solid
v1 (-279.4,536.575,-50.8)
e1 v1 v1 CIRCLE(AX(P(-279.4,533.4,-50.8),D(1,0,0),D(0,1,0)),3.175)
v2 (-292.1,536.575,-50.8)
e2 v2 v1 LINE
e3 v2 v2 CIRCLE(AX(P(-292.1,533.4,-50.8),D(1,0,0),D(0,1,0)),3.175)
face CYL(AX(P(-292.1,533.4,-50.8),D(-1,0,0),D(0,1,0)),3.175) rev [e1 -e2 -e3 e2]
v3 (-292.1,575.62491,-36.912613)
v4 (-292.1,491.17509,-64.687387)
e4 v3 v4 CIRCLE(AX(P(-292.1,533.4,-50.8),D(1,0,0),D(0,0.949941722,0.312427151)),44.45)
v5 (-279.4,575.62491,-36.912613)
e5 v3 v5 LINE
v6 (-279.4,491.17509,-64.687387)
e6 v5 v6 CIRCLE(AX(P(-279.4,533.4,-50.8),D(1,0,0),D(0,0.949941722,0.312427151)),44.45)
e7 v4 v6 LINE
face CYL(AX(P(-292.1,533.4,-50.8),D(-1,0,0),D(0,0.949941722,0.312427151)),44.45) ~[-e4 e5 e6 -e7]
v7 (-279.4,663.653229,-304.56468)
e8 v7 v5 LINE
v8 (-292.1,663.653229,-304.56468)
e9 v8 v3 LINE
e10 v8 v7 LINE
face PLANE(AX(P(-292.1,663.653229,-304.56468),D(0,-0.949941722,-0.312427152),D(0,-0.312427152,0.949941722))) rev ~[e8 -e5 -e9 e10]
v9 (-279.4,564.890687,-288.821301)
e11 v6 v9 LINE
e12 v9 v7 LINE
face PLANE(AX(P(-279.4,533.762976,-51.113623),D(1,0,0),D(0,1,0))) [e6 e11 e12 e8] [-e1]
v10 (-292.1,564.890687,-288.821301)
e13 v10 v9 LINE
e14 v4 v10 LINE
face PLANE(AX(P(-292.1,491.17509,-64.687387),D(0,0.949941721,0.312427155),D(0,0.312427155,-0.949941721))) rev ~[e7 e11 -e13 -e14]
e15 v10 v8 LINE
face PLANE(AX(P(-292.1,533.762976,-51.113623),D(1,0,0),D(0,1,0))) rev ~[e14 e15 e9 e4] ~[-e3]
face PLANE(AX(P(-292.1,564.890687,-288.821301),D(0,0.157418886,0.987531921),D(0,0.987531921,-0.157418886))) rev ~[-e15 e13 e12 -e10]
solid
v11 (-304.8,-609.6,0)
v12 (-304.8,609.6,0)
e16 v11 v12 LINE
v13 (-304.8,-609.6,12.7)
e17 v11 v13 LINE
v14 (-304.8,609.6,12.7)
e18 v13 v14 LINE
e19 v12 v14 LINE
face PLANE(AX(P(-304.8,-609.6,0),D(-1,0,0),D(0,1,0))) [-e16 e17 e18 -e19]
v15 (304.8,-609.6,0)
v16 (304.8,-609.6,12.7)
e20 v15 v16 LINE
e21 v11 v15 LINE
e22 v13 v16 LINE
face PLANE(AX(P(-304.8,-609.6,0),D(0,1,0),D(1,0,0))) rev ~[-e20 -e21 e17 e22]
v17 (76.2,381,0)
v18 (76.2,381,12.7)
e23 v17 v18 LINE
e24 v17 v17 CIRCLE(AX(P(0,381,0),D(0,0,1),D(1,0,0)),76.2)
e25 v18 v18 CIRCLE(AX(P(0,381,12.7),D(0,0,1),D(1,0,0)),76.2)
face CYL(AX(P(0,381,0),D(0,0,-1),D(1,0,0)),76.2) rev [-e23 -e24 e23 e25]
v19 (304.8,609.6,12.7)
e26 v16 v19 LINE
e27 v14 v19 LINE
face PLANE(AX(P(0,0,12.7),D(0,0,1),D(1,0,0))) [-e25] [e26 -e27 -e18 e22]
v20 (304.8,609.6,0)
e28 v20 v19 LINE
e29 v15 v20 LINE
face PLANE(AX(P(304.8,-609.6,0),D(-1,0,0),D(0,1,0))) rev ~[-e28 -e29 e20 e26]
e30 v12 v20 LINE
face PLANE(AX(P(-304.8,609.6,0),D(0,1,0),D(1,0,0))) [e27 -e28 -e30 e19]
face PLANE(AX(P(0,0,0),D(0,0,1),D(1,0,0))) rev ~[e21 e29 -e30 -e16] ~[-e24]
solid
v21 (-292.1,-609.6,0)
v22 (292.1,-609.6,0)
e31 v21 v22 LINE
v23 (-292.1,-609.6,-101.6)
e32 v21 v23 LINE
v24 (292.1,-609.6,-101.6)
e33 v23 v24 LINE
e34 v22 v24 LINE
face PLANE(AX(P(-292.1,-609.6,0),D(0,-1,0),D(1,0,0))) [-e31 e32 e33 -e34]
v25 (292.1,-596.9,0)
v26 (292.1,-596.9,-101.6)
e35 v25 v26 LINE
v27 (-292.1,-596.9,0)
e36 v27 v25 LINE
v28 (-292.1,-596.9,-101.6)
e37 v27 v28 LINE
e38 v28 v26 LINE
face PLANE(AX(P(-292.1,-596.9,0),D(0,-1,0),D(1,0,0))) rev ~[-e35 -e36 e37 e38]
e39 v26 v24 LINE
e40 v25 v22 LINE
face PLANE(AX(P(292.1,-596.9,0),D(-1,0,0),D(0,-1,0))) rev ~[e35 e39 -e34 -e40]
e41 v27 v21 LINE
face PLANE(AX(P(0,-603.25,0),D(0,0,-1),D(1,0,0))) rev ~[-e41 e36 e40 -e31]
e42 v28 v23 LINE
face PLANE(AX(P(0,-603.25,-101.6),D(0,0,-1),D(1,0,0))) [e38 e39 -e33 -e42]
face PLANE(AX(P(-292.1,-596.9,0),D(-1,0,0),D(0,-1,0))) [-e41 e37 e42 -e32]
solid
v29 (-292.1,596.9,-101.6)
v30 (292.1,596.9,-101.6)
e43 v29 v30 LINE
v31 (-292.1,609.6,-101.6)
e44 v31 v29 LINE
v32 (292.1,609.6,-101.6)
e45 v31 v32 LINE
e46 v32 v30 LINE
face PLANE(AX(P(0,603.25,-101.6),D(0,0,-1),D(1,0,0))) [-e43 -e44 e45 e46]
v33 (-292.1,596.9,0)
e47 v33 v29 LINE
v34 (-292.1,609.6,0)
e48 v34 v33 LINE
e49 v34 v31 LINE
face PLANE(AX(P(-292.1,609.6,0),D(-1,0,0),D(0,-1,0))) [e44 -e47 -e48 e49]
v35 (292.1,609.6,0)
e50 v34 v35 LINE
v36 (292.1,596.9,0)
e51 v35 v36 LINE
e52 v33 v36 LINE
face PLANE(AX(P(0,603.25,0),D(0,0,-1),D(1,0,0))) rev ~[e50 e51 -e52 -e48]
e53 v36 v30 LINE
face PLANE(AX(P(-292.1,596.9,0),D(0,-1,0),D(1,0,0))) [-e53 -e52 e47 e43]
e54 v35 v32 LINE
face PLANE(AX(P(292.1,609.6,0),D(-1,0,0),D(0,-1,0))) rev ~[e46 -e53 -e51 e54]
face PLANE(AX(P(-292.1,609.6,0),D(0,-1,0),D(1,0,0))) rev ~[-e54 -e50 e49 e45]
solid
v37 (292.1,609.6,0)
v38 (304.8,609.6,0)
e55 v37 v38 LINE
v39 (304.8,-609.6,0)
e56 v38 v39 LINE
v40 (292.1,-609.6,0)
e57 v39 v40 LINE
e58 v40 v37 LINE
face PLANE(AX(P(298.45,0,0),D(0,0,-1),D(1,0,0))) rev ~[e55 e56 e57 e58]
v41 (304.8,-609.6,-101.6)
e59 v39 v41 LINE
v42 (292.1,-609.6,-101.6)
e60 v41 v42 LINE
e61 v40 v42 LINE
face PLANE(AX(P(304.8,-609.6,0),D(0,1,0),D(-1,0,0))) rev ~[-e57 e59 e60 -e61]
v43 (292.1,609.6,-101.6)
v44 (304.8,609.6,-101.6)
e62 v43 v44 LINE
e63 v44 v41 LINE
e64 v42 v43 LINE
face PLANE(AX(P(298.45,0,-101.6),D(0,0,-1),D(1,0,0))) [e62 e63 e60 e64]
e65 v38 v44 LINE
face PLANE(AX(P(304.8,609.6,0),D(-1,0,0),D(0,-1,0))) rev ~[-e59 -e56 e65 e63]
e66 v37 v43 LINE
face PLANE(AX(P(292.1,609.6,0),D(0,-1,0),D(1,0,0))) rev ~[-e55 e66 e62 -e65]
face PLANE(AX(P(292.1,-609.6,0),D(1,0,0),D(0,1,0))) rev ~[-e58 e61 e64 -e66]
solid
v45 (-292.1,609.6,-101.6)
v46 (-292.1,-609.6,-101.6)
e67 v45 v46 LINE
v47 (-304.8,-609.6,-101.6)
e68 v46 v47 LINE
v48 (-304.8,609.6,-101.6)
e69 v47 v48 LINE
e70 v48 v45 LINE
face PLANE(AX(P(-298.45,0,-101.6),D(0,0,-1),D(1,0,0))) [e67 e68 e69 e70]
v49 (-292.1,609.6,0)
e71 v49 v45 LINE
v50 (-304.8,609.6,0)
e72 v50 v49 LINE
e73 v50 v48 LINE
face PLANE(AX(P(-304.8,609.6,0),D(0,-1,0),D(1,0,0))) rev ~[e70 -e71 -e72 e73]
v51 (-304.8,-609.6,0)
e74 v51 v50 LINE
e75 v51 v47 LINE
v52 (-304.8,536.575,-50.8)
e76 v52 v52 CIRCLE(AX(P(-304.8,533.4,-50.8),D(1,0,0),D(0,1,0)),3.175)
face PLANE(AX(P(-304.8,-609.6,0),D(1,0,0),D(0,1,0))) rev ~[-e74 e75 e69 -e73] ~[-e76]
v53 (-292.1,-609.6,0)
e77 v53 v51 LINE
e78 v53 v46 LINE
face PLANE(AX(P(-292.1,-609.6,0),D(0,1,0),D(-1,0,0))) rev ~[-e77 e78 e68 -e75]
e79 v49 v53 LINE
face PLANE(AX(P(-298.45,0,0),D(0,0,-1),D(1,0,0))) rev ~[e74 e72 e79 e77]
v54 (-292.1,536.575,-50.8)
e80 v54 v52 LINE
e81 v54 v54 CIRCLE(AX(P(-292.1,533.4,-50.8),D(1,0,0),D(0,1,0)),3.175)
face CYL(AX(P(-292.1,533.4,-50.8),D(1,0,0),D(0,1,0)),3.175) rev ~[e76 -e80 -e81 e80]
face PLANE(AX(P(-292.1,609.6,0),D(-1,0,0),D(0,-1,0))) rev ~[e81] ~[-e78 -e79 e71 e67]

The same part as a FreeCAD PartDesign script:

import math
import FreeCAD as App
import Part
import Sketcher
Q = App.Units.Quantity

doc = App.newDocument("Part")
body = doc.addObject("PartDesign::Body", "Body")

# Sketch on XY plane
sketch1 = body.newObject("Sketcher::SketchObject", "Sketch")
sketch1.AttachmentSupport = (doc.getObject("XY_Plane"), [""])
sketch1.MapMode = "FlatFace"
sketch1.addGeometry(Part.LineSegment(App.Vector(-304.8, 609.6, 0), App.Vector(-304.8, -609.6, 0)), False)
sketch1.addGeometry(Part.LineSegment(App.Vector(-304.8, -609.6, 0), App.Vector(304.8, -609.6, 0)), False)
sketch1.addGeometry(Part.LineSegment(App.Vector(304.8, -609.6, 0), App.Vector(304.8, 609.6, 0)), False)
sketch1.addGeometry(Part.LineSegment(App.Vector(304.8, 609.6, 0), App.Vector(-304.8, 609.6, 0)), False)
sketch1.addGeometry(Part.Circle(App.Vector(0, 381, 0), App.Vector(0, 0, 1), 76.2), False)
sketch1.addConstraint(Sketcher.Constraint("Coincident", 0, 2, 1, 1))
sketch1.addConstraint(Sketcher.Constraint("Coincident", 1, 2, 2, 1))
sketch1.addConstraint(Sketcher.Constraint("Coincident", 2, 2, 3, 1))
sketch1.addConstraint(Sketcher.Constraint("Coincident", 3, 2, 0, 1))
sketch1.addConstraint(Sketcher.Constraint("Vertical", 0))
sketch1.addConstraint(Sketcher.Constraint("Horizontal", 1))
sketch1.addConstraint(Sketcher.Constraint("Vertical", 2))
sketch1.addConstraint(Sketcher.Constraint("Horizontal", 3))
sketch1.addConstraint(Sketcher.Constraint("Symmetric", 0, 2, 2, 2, -1, 1))
sketch1.addConstraint(Sketcher.Constraint("PointOnObject", 4, 3, -2))
sketch1.addConstraint(Sketcher.Constraint("Diameter", 4, Q("6 in")))
sketch1.addConstraint(Sketcher.Constraint("DistanceX", 1, 1, 1, 2, Q("24 in")))
sketch1.addConstraint(Sketcher.Constraint("DistanceY", 0, 2, 0, 1, Q("48 in")))
sketch1.addConstraint(Sketcher.Constraint("DistanceY", -1, 1, 4, 3, Q("15 in")))
pad1 = body.newObject("PartDesign::Pad", "Pad")
pad1.Profile = sketch1
pad1.Length = Q("0.5 in")
body2 = doc.addObject("PartDesign::Body", "Body001")
body2.AllowCompound = True

# Sketch on XY plane
sketch2 = body2.newObject("Sketcher::SketchObject", "Sketch001")
sketch2.AttachmentSupport = (doc.getObject("XY_Plane001"), [""])
sketch2.MapMode = "FlatFace"
sketch2.addGeometry(Part.LineSegment(App.Vector(-292.1, -609.6, 0), App.Vector(-304.8, -609.6, 0)), False)
sketch2.addGeometry(Part.LineSegment(App.Vector(-304.8, -609.6, 0), App.Vector(-304.8, 609.6, 0)), False)
sketch2.addGeometry(Part.LineSegment(App.Vector(-304.8, 609.6, 0), App.Vector(-292.1, 609.6, 0)), False)
sketch2.addGeometry(Part.LineSegment(App.Vector(-292.1, 609.6, 0), App.Vector(-292.1, -609.6, 0)), False)
sketch2.addGeometry(Part.LineSegment(App.Vector(304.8, -609.6, 0), App.Vector(292.1, -609.6, 0)), False)
sketch2.addGeometry(Part.LineSegment(App.Vector(292.1, -609.6, 0), App.Vector(292.1, 609.6, 0)), False)
sketch2.addGeometry(Part.LineSegment(App.Vector(292.1, 609.6, 0), App.Vector(304.8, 609.6, 0)), False)
sketch2.addGeometry(Part.LineSegment(App.Vector(304.8, 609.6, 0), App.Vector(304.8, -609.6, 0)), False)
sketch2.addConstraint(Sketcher.Constraint("Coincident", 0, 2, 1, 1))
sketch2.addConstraint(Sketcher.Constraint("Coincident", 1, 2, 2, 1))
sketch2.addConstraint(Sketcher.Constraint("Coincident", 2, 2, 3, 1))
sketch2.addConstraint(Sketcher.Constraint("Coincident", 3, 2, 0, 1))
sketch2.addConstraint(Sketcher.Constraint("Coincident", 4, 2, 5, 1))
sketch2.addConstraint(Sketcher.Constraint("Coincident", 5, 2, 6, 1))
sketch2.addConstraint(Sketcher.Constraint("Coincident", 6, 2, 7, 1))
sketch2.addConstraint(Sketcher.Constraint("Coincident", 7, 2, 4, 1))
sketch2.addConstraint(Sketcher.Constraint("Horizontal", 0))
sketch2.addConstraint(Sketcher.Constraint("Vertical", 1))
sketch2.addConstraint(Sketcher.Constraint("Horizontal", 2))
sketch2.addConstraint(Sketcher.Constraint("Vertical", 3))
sketch2.addConstraint(Sketcher.Constraint("Horizontal", 4))
sketch2.addConstraint(Sketcher.Constraint("Vertical", 5))
sketch2.addConstraint(Sketcher.Constraint("Horizontal", 6))
sketch2.addConstraint(Sketcher.Constraint("Vertical", 7))
sketch2.addConstraint(Sketcher.Constraint("Symmetric", 2, 2, 4, 2, -1, 1))
sketch2.addConstraint(Sketcher.Constraint("Symmetric", 0, 2, 6, 2, -1, 1))
sketch2.addConstraint(Sketcher.Constraint("Horizontal", 3, 2, 4, 2))
sketch2.addConstraint(Sketcher.Constraint("DistanceY", 1, 1, 1, 2, Q("48 in")))
sketch2.addConstraint(Sketcher.Constraint("DistanceX", 0, 2, 0, 1, Q("0.5 in")))
sketch2.addConstraint(Sketcher.Constraint("DistanceX", 0, 2, -1, 1, Q("12 in")))
pad2 = body2.newObject("PartDesign::Pad", "Pad001")
pad2.Profile = sketch2
pad2.Length = Q("4 in")
pad2.Reversed = True

# Sketch on YZ plane
sketch3 = body2.newObject("Sketcher::SketchObject", "Sketch002")
sketch3.AttachmentSupport = (doc.getObject("YZ_Plane001"), [""])
sketch3.MapMode = "FlatFace"
sketch3.AttachmentOffset = App.Placement(App.Vector(0, 0, -11.5 * 25.4), App.Rotation())
sketch3.addGeometry(Part.Circle(App.Vector(533.4, -50.8, 0), App.Vector(0, 0, 1), 3.175), False)
sketch3.addConstraint(Sketcher.Constraint("Diameter", 0, Q("0.25 in")))
sketch3.addConstraint(Sketcher.Constraint("DistanceX", -1, 1, 0, 3, Q("21 in")))
sketch3.addConstraint(Sketcher.Constraint("DistanceY", 0, 3, -1, 1, Q("2 in")))
pocket1 = body2.newObject("PartDesign::Pocket", "Pocket")
pocket1.Profile = sketch3
pocket1.Type = "ThroughAll"
body3 = doc.addObject("PartDesign::Body", "Body002")
body3.AllowCompound = True

# Sketch on XY plane
sketch4 = body3.newObject("Sketcher::SketchObject", "Sketch003")
sketch4.AttachmentSupport = (doc.getObject("XY_Plane002"), [""])
sketch4.MapMode = "FlatFace"
sketch4.addGeometry(Part.LineSegment(App.Vector(-292.1, -609.6, 0), App.Vector(-292.1, -596.9, 0)), False)
sketch4.addGeometry(Part.LineSegment(App.Vector(-292.1, -596.9, 0), App.Vector(292.1, -596.9, 0)), False)
sketch4.addGeometry(Part.LineSegment(App.Vector(292.1, -596.9, 0), App.Vector(292.1, -609.6, 0)), False)
sketch4.addGeometry(Part.LineSegment(App.Vector(292.1, -609.6, 0), App.Vector(-292.1, -609.6, 0)), False)
sketch4.addGeometry(Part.LineSegment(App.Vector(-292.1, 596.9, 0), App.Vector(-292.1, 609.6, 0)), False)
sketch4.addGeometry(Part.LineSegment(App.Vector(-292.1, 609.6, 0), App.Vector(292.1, 609.6, 0)), False)
sketch4.addGeometry(Part.LineSegment(App.Vector(292.1, 609.6, 0), App.Vector(292.1, 596.9, 0)), False)
sketch4.addGeometry(Part.LineSegment(App.Vector(292.1, 596.9, 0), App.Vector(-292.1, 596.9, 0)), False)
sketch4.addConstraint(Sketcher.Constraint("Coincident", 0, 2, 1, 1))
sketch4.addConstraint(Sketcher.Constraint("Coincident", 1, 2, 2, 1))
sketch4.addConstraint(Sketcher.Constraint("Coincident", 2, 2, 3, 1))
sketch4.addConstraint(Sketcher.Constraint("Coincident", 3, 2, 0, 1))
sketch4.addConstraint(Sketcher.Constraint("Coincident", 4, 2, 5, 1))
sketch4.addConstraint(Sketcher.Constraint("Coincident", 5, 2, 6, 1))
sketch4.addConstraint(Sketcher.Constraint("Coincident", 6, 2, 7, 1))
sketch4.addConstraint(Sketcher.Constraint("Coincident", 7, 2, 4, 1))
sketch4.addConstraint(Sketcher.Constraint("Vertical", 0))
sketch4.addConstraint(Sketcher.Constraint("Horizontal", 1))
sketch4.addConstraint(Sketcher.Constraint("Vertical", 2))
sketch4.addConstraint(Sketcher.Constraint("Horizontal", 3))
sketch4.addConstraint(Sketcher.Constraint("Vertical", 4))
sketch4.addConstraint(Sketcher.Constraint("Horizontal", 5))
sketch4.addConstraint(Sketcher.Constraint("Vertical", 6))
sketch4.addConstraint(Sketcher.Constraint("Horizontal", 7))
sketch4.addConstraint(Sketcher.Constraint("Symmetric", 2, 2, 4, 2, -1, 1))
sketch4.addConstraint(Sketcher.Constraint("Symmetric", 0, 2, 6, 2, -1, 1))
sketch4.addConstraint(Sketcher.Constraint("Vertical", 3, 2, 4, 2))
sketch4.addConstraint(Sketcher.Constraint("DistanceX", 1, 1, 1, 2, Q("23 in")))
sketch4.addConstraint(Sketcher.Constraint("DistanceY", 0, 1, 0, 2, Q("0.5 in")))
sketch4.addConstraint(Sketcher.Constraint("DistanceY", 2, 2, -1, 1, Q("24 in")))
pad3 = body3.newObject("PartDesign::Pad", "Pad002")
pad3.Profile = sketch4
pad3.Length = Q("4 in")
pad3.Reversed = True
body4 = doc.addObject("PartDesign::Body", "Body003")

# Sketch on YZ plane
sketch5 = body4.newObject("Sketcher::SketchObject", "Sketch004")
sketch5.AttachmentSupport = (doc.getObject("YZ_Plane003"), [""])
sketch5.MapMode = "FlatFace"
sketch5.AttachmentOffset = App.Placement(App.Vector(0, 0, -11.5 * 25.4), App.Rotation())
sketch5.addGeometry(Part.ArcOfCircle(Part.Circle(App.Vector(533.4, -50.8, 0), App.Vector(0, 0, 1), 44.45), math.radians(18.205563), math.radians(198.205563)), False)
sketch5.addGeometry(Part.LineSegment(App.Vector(491.17509, -64.687387, 0), App.Vector(564.890687, -288.821301, 0)), False)
sketch5.addGeometry(Part.LineSegment(App.Vector(564.890687, -288.821301, 0), App.Vector(663.653229, -304.56468, 0)), False)
sketch5.addGeometry(Part.LineSegment(App.Vector(663.653229, -304.56468, 0), App.Vector(575.62491, -36.912613, 0)), False)
sketch5.addGeometry(Part.Circle(App.Vector(533.4, -50.8, 0), App.Vector(0, 0, 1), 3.175), False)
sketch5.addConstraint(Sketcher.Constraint("Tangent", 0, 2, 1, 1))
sketch5.addConstraint(Sketcher.Constraint("Coincident", 1, 2, 2, 1))
sketch5.addConstraint(Sketcher.Constraint("Coincident", 2, 2, 3, 1))
sketch5.addConstraint(Sketcher.Constraint("Tangent", 3, 2, 0, 1))
sketch5.addConstraint(Sketcher.Constraint("Coincident", 4, 3, 0, 3))
sketch5.addConstraint(Sketcher.Constraint("Parallel", 1, 3))
sketch5.addConstraint(Sketcher.Constraint("Diameter", 4, Q("0.25 in")))
sketch5.addConstraint(Sketcher.Constraint("Radius", 0, Q("1.75 in")))
sketch5.addConstraint(Sketcher.Constraint("DistanceX", -1, 1, 0, 3, Q("21 in")))
sketch5.addConstraint(Sketcher.Constraint("DistanceY", 0, 3, -1, 1, Q("2 in")))
sketch5.addConstraint(Sketcher.Constraint("DistanceY", 1, 2, -1, 1, Q("288.821301 mm")))
sketch5.addConstraint(Sketcher.Constraint("Distance", 1, Q("235.94491 mm")))
sketch5.addConstraint(Sketcher.Constraint("DistanceX", -1, 1, 2, 2, Q("663.653229 mm")))
pad4 = body4.newObject("PartDesign::Pad", "Pad003")
pad4.Profile = sketch5
pad4.Length = Q("0.5 in")

doc.recompute()
